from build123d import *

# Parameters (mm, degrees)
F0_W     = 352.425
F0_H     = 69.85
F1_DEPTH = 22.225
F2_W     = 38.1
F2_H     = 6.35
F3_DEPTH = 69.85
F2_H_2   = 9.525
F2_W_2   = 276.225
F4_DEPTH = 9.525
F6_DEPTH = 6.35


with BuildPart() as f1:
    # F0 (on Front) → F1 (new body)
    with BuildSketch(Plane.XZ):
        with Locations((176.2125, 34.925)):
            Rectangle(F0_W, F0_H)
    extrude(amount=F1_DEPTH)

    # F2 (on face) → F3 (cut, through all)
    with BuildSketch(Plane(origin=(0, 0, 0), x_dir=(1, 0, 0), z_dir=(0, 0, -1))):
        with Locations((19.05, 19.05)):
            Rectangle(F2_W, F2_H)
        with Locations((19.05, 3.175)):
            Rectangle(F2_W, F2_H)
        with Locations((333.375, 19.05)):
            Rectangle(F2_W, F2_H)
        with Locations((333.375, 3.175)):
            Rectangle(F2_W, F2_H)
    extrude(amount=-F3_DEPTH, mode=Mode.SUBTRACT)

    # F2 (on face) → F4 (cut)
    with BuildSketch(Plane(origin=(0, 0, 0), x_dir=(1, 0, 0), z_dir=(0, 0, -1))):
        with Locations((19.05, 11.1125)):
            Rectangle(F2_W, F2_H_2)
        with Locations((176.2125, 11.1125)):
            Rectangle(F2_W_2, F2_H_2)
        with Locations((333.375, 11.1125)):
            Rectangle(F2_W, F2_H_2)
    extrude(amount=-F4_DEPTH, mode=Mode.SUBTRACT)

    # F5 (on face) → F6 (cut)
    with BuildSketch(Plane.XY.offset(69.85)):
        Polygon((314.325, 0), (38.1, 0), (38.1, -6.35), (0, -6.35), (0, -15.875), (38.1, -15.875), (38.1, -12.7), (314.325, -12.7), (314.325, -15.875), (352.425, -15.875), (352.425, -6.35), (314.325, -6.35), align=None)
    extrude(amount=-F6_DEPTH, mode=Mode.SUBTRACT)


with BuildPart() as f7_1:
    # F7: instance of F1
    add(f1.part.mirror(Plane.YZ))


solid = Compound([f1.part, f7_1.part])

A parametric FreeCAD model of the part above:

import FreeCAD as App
import Part
import Sketcher
Q = App.Units.Quantity


def add_polygon(sketch, points):
    """Adds a closed chain of lines whose ends are joined by coincident constraints."""
    first, n = sketch.GeometryCount, len(points)
    for a, b in zip(points, points[1:] + points[:1]):
        sketch.addGeometry(Part.LineSegment(App.Vector(*a, 0), App.Vector(*b, 0)), False)
    for i in range(n):
        sketch.addConstraint(Sketcher.Constraint("Coincident", first + i, 2, first + (i + 1) % n, 1))

doc = App.newDocument("Part")
body = doc.addObject("PartDesign::Body", "Body")

# Sketch on XZ plane
sketch1 = body.newObject("Sketcher::SketchObject", "Sketch")
sketch1.AttachmentSupport = (doc.getObject("XZ_Plane"), [""])
sketch1.MapMode = "FlatFace"
add_polygon(sketch1, [(0, 69.85), (0, 0), (352.425, 0), (352.425, 69.85)])  # lines 0-3
sketch1.addConstraint(Sketcher.Constraint("Vertical", 0))
sketch1.addConstraint(Sketcher.Constraint("Horizontal", 1))
sketch1.addConstraint(Sketcher.Constraint("Vertical", 2))
sketch1.addConstraint(Sketcher.Constraint("Horizontal", 3))
sketch1.addConstraint(Sketcher.Constraint("Coincident", 0, 2, -1, 1))
sketch1.addConstraint(Sketcher.Constraint("DistanceY", 0, 2, 0, 1, Q("2.75 in")))
sketch1.addConstraint(Sketcher.Constraint("DistanceX", 1, 1, 1, 2, Q("13.875 in")))
pad1 = body.newObject("PartDesign::Pad", "Pad")
pad1.Profile = sketch1
pad1.Length = Q("0.875 in")

# Sketch on XY plane
sketch2 = body.newObject("Sketcher::SketchObject", "Sketch001")
sketch2.AttachmentSupport = (doc.getObject("XY_Plane"), [""])
sketch2.MapMode = "FlatFace"
add_polygon(sketch2, [(0, -22.225), (0, -15.875), (38.1, -15.875), (38.1, -22.225)])  # lines 0-3
add_polygon(sketch2, [(0, -6.35), (0, 0), (38.1, 0), (38.1, -6.35)])  # lines 4-7
add_polygon(sketch2, [(314.325, -22.225), (314.325, -15.875), (352.425, -15.875), (352.425, -22.225)])  # lines 8-11
add_polygon(sketch2, [(314.325, -6.35), (314.325, 0), (352.425, 0), (352.425, -6.35)])  # lines 12-15
sketch2.addConstraint(Sketcher.Constraint("Vertical", 0))
sketch2.addConstraint(Sketcher.Constraint("Horizontal", 1))
sketch2.addConstraint(Sketcher.Constraint("Vertical", 2))
sketch2.addConstraint(Sketcher.Constraint("Horizontal", 3))
sketch2.addConstraint(Sketcher.Constraint("Vertical", 4))
sketch2.addConstraint(Sketcher.Constraint("Horizontal", 5))
sketch2.addConstraint(Sketcher.Constraint("Vertical", 6))
sketch2.addConstraint(Sketcher.Constraint("Horizontal", 7))
sketch2.addConstraint(Sketcher.Constraint("Vertical", 8))
sketch2.addConstraint(Sketcher.Constraint("Horizontal", 9))
sketch2.addConstraint(Sketcher.Constraint("Vertical", 10))
sketch2.addConstraint(Sketcher.Constraint("Horizontal", 11))
sketch2.addConstraint(Sketcher.Constraint("Vertical", 12))
sketch2.addConstraint(Sketcher.Constraint("Horizontal", 13))
sketch2.addConstraint(Sketcher.Constraint("Vertical", 14))
sketch2.addConstraint(Sketcher.Constraint("Horizontal", 15))
sketch2.addConstraint(Sketcher.Constraint("Coincident", 4, 2, -1, 1))
sketch2.addConstraint(Sketcher.Constraint("PointOnObject", 0, 2, -2))
sketch2.addConstraint(Sketcher.Constraint("PointOnObject", 12, 2, -1))
sketch2.addConstraint(Sketcher.Constraint("Horizontal", 1, 2, 8, 2))
sketch2.addConstraint(Sketcher.Constraint("Horizontal", 3, 2, 10, 2))
sketch2.addConstraint(Sketcher.Constraint("Horizontal", 7, 2, 14, 2))
sketch2.addConstraint(Sketcher.Constraint("Vertical", 2, 2, 5, 2))
sketch2.addConstraint(Sketcher.Constraint("Vertical", 11, 2, 12, 2))
sketch2.addConstraint(Sketcher.Constraint("Vertical", 10, 2, 13, 2))
sketch2.addConstraint(Sketcher.Constraint("Equal", 7, 9))
sketch2.addConstraint(Sketcher.Constraint("Equal", 2, 4))
sketch2.addConstraint(Sketcher.Constraint("DistanceX", 1, 1, 1, 2, Q("1.5 in")))
sketch2.addConstraint(Sketcher.Constraint("DistanceY", 0, 1, 0, 2, Q("0.25 in")))
sketch2.addConstraint(Sketcher.Constraint("DistanceY", 0, 2, -1, 1, Q("0.625 in")))
sketch2.addConstraint(Sketcher.Constraint("DistanceX", -1, 1, 8, 2, Q("12.375 in")))
pocket1 = body.newObject("PartDesign::Pocket", "Pocket")
pocket1.Profile = sketch2
pocket1.Type = "ThroughAll"
pocket1.Reversed = True

# Sketch on XY plane
sketch3 = body.newObject("Sketcher::SketchObject", "Sketch002")
sketch3.AttachmentSupport = (doc.getObject("XY_Plane"), [""])
sketch3.MapMode = "FlatFace"
add_polygon(sketch3, [(0, -15.875), (0, -6.35), (352.425, -6.35), (352.425, -15.875)])  # lines 0-3
sketch3.addConstraint(Sketcher.Constraint("Vertical", 0))
sketch3.addConstraint(Sketcher.Constraint("Horizontal", 1))
sketch3.addConstraint(Sketcher.Constraint("Vertical", 2))
sketch3.addConstraint(Sketcher.Constraint("Horizontal", 3))
sketch3.addConstraint(Sketcher.Constraint("PointOnObject", 0, 2, -2))
sketch3.addConstraint(Sketcher.Constraint("DistanceX", 1, 1, 1, 2, Q("13.875 in")))
sketch3.addConstraint(Sketcher.Constraint("DistanceY", 0, 1, 0, 2, Q("0.375 in")))
sketch3.addConstraint(Sketcher.Constraint("DistanceY", 0, 2, -1, 1, Q("0.25 in")))
pocket2 = body.newObject("PartDesign::Pocket", "Pocket001")
pocket2.Profile = sketch3
pocket2.Length = Q("0.375 in")
pocket2.Reversed = True

# Sketch on XY plane
sketch4 = body.newObject("Sketcher::SketchObject", "Sketch003")
sketch4.AttachmentSupport = (doc.getObject("XY_Plane"), [""])
sketch4.MapMode = "FlatFace"
sketch4.AttachmentOffset = App.Placement(App.Vector(0, 0, 2.75 * 25.4), App.Rotation())
add_polygon(sketch4, [(314.325, 0), (38.1, 0), (38.1, -6.35), (0, -6.35), (0, -15.875), (38.1, -15.875), (38.1, -12.7), (314.325, -12.7), (314.325, -15.875), (352.425, -15.875), (352.425, -6.35), (314.325, -6.35)])  # lines 0-11
sketch4.addConstraint(Sketcher.Constraint("Horizontal", 0))
sketch4.addConstraint(Sketcher.Constraint("Vertical", 1))
sketch4.addConstraint(Sketcher.Constraint("Horizontal", 2))
sketch4.addConstraint(Sketcher.Constraint("Vertical", 3))
sketch4.addConstraint(Sketcher.Constraint("Horizontal", 4))
sketch4.addConstraint(Sketcher.Constraint("Vertical", 5))
sketch4.addConstraint(Sketcher.Constraint("Horizontal", 6))
sketch4.addConstraint(Sketcher.Constraint("Vertical", 7))
sketch4.addConstraint(Sketcher.Constraint("Horizontal", 8))
sketch4.addConstraint(Sketcher.Constraint("Vertical", 9))
sketch4.addConstraint(Sketcher.Constraint("Horizontal", 10))
sketch4.addConstraint(Sketcher.Constraint("Vertical", 11))
sketch4.addConstraint(Sketcher.Constraint("PointOnObject", 0, 2, -1))
sketch4.addConstraint(Sketcher.Constraint("PointOnObject", 2, 2, -2))
sketch4.addConstraint(Sketcher.Constraint("Horizontal", 4, 2, 7, 2))
sketch4.addConstraint(Sketcher.Constraint("Horizontal", 2, 2, 9, 2))
sketch4.addConstraint(Sketcher.Constraint("Vertical", 1, 2, 4, 2))
sketch4.addConstraint(Sketcher.Constraint("Vertical", 7, 2, 10, 2))
sketch4.addConstraint(Sketcher.Constraint("Equal", 4, 8))
sketch4.addConstraint(Sketcher.Constraint("DistanceX", 2, 2, 2, 1, Q("1.5 in")))
sketch4.addConstraint(Sketcher.Constraint("DistanceY", 1, 2, 1, 1, Q("0.25 in")))
sketch4.addConstraint(Sketcher.Constraint("DistanceY", 5, 2, -1, 1, Q("0.5 in")))
sketch4.addConstraint(Sketcher.Constraint("DistanceX", 0, 2, 0, 1, Q("10.875 in")))
sketch4.addConstraint(Sketcher.Constraint("DistanceY", 3, 2, 3, 1, Q("0.375 in")))
pocket3 = body.newObject("PartDesign::Pocket", "Pocket002")
pocket3.Profile = sketch4
pocket3.Length = Q("0.25 in")
body2 = doc.addObject("PartDesign::Body", "Body001")
doc.recompute()

mirroring = doc.addObject("Part::Mirroring", "Mirroring")
mirroring.Source = body
mirroring.Base = App.Vector(0, 0, 0)
mirroring.Normal = App.Vector(1, 0, 0)
body2.BaseFeature = mirroring
doc.recompute()
mirroring.Visibility = False

doc.recompute()
